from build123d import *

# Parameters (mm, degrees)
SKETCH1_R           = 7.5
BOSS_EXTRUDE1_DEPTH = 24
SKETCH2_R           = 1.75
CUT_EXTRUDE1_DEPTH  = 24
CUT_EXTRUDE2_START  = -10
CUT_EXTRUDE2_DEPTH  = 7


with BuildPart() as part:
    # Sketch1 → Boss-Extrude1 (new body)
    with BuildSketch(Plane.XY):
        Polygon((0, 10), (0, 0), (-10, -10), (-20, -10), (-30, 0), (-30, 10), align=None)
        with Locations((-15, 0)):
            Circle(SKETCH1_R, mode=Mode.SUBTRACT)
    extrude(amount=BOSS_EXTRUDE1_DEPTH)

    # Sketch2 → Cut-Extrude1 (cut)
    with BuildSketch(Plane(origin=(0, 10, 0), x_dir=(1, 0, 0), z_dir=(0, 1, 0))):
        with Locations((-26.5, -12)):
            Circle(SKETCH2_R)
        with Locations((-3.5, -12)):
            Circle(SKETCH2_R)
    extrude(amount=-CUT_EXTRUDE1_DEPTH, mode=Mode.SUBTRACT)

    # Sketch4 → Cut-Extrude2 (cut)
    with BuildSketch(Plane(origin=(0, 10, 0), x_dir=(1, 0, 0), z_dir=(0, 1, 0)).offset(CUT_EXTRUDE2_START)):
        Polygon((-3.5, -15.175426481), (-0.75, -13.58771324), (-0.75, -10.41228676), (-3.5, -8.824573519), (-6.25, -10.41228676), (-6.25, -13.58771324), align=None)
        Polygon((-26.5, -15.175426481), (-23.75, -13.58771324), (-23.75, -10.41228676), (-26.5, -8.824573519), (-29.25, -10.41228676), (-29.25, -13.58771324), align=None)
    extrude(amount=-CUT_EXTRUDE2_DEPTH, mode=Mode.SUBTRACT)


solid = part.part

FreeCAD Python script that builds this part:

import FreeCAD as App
import Part
import Sketcher
Q = App.Units.Quantity

doc = App.newDocument("Part")
body = doc.addObject("PartDesign::Body", "Body")

sketch1 = body.newObject("Sketcher::SketchObject", "Sketch")
sketch1.AttachmentSupport = (doc.getObject("XY_Plane"), [""])
sketch1.MapMode = "FlatFace"
sketch1.addGeometry(Part.LineSegment(App.Vector(0, 0, 0), App.Vector(0, 10, 0)), False)
sketch1.addGeometry(Part.LineSegment(App.Vector(0, 10, 0), App.Vector(-30, 10, 0)), False)
sketch1.addGeometry(Part.LineSegment(App.Vector(-30, 10, 0), App.Vector(-30, 0, 0)), False)
sketch1.addGeometry(Part.LineSegment(App.Vector(-30, 0, 0), App.Vector(-20, -10, 0)), False)
sketch1.addGeometry(Part.LineSegment(App.Vector(-20, -10, 0), App.Vector(-10, -10, 0)), False)
sketch1.addGeometry(Part.LineSegment(App.Vector(-10, -10, 0), App.Vector(0, 0, 0)), False)
sketch1.addGeometry(Part.Circle(App.Vector(-15, 0, 0), App.Vector(0, 0, 1), 8), False)
sketch1.addConstraint(Sketcher.Constraint("Coincident", 0, 2, 1, 1))
sketch1.addConstraint(Sketcher.Constraint("Coincident", 1, 2, 2, 1))
sketch1.addConstraint(Sketcher.Constraint("Coincident", 2, 2, 3, 1))
sketch1.addConstraint(Sketcher.Constraint("Coincident", 3, 2, 4, 1))
sketch1.addConstraint(Sketcher.Constraint("Coincident", 4, 2, 5, 1))
sketch1.addConstraint(Sketcher.Constraint("Coincident", 5, 2, 0, 1))
sketch1.addConstraint(Sketcher.Constraint("Vertical", 0))
sketch1.addConstraint(Sketcher.Constraint("Horizontal", 1))
sketch1.addConstraint(Sketcher.Constraint("Vertical", 2))
sketch1.addConstraint(Sketcher.Constraint("Horizontal", 4))
sketch1.addConstraint(Sketcher.Constraint("Coincident", 5, 2, -1, 1))
sketch1.addConstraint(Sketcher.Constraint("PointOnObject", 6, 3, -1))
sketch1.addConstraint(Sketcher.Constraint("PointOnObject", 2, 2, -1))
sketch1.addConstraint(Sketcher.Constraint("Perpendicular", 3, 5))
sketch1.addConstraint(Sketcher.Constraint("Equal", 4, 0))
sketch1.addConstraint(Sketcher.Constraint("Equal", 3, 5))
sketch1.addConstraint(Sketcher.Constraint("Diameter", 6, Q("15 mm")))
sketch1.addConstraint(Sketcher.Constraint("DistanceX", 1, 2, 1, 1, Q("30 mm")))
sketch1.addConstraint(Sketcher.Constraint("DistanceX", 4, 1, 4, 2, Q("10 mm")))
sketch1.addConstraint(Sketcher.Constraint("DistanceX", 6, 3, -1, 1, Q("15 mm")))
pad1 = body.newObject("PartDesign::Pad", "Pad")
pad1.Profile = sketch1
pad1.Length = 24

sketch2 = body.newObject("Sketcher::SketchObject", "Sketch001")
sketch2.AttachmentSupport = (doc.getObject("XZ_Plane"), [""])
sketch2.MapMode = "FlatFace"
sketch2.AttachmentOffset = App.Placement(App.Vector(0, 0, -10), App.Rotation())
sketch2.addGeometry(Part.Circle(App.Vector(-26.5, 12, 0), App.Vector(0, 0, 1), 1.8), False)
sketch2.addGeometry(Part.Circle(App.Vector(-3.5, 12, 0), App.Vector(0, 0, 1), 1.8), False)
sketch2.addConstraint(Sketcher.Constraint("Equal", 0, 1))
sketch2.addConstraint(Sketcher.Constraint("Horizontal", 0, 3, 1, 3))
sketch2.addConstraint(Sketcher.Constraint("Diameter", 0, Q("3.5 mm")))
sketch2.addConstraint(Sketcher.Constraint("DistanceY", -1, 1, 0, 3, Q("12 mm")))
sketch2.addConstraint(Sketcher.Constraint("DistanceX", 0, 3, 1, 3, Q("23 mm")))
sketch2.addConstraint(Sketcher.Constraint("DistanceX", 0, 3, -1, 1, Q("26.5 mm")))
pocket1 = body.newObject("PartDesign::Pocket", "Pocket")
pocket1.Profile = sketch2
pocket1.Length = 24
pocket1.Reversed = True

sketch3 = body.newObject("Sketcher::SketchObject", "Sketch002")
sketch3.AttachmentSupport = (doc.getObject("XZ_Plane"), [""])
sketch3.MapMode = "FlatFace"
sketch3.addGeometry(Part.LineSegment(App.Vector(-3.5, 15.2, 0), App.Vector(-0.8, 13.6, 0)), False)
sketch3.addGeometry(Part.LineSegment(App.Vector(-0.8, 13.6, 0), App.Vector(-0.8, 10.4, 0)), False)
sketch3.addGeometry(Part.LineSegment(App.Vector(-0.8, 10.4, 0), App.Vector(-3.5, 8.8, 0)), False)
sketch3.addGeometry(Part.LineSegment(App.Vector(-3.5, 8.8, 0), App.Vector(-6.2, 10.4, 0)), False)
sketch3.addGeometry(Part.LineSegment(App.Vector(-6.2, 10.4, 0), App.Vector(-6.2, 13.6, 0)), False)
sketch3.addGeometry(Part.LineSegment(App.Vector(-6.2, 13.6, 0), App.Vector(-3.5, 15.2, 0)), False)
sketch3.addGeometry(Part.LineSegment(App.Vector(-26.5, 15.2, 0), App.Vector(-23.8, 13.6, 0)), False)
sketch3.addGeometry(Part.LineSegment(App.Vector(-23.8, 13.6, 0), App.Vector(-23.8, 10.4, 0)), False)
sketch3.addGeometry(Part.LineSegment(App.Vector(-23.8, 10.4, 0), App.Vector(-26.5, 8.8, 0)), False)
sketch3.addGeometry(Part.LineSegment(App.Vector(-26.5, 8.8, 0), App.Vector(-29.2, 10.4, 0)), False)
sketch3.addGeometry(Part.LineSegment(App.Vector(-29.2, 10.4, 0), App.Vector(-29.2, 13.6, 0)), False)
sketch3.addGeometry(Part.LineSegment(App.Vector(-29.2, 13.6, 0), App.Vector(-26.5, 15.2, 0)), False)
sketch3.addConstraint(Sketcher.Constraint("Coincident", 0, 2, 1, 1))
sketch3.addConstraint(Sketcher.Constraint("Coincident", 1, 2, 2, 1))
sketch3.addConstraint(Sketcher.Constraint("Coincident", 2, 2, 3, 1))
sketch3.addConstraint(Sketcher.Constraint("Coincident", 3, 2, 4, 1))
sketch3.addConstraint(Sketcher.Constraint("Coincident", 4, 2, 5, 1))
sketch3.addConstraint(Sketcher.Constraint("Coincident", 5, 2, 0, 1))
sketch3.addConstraint(Sketcher.Constraint("Coincident", 6, 2, 7, 1))
sketch3.addConstraint(Sketcher.Constraint("Coincident", 7, 2, 8, 1))
sketch3.addConstraint(Sketcher.Constraint("Coincident", 8, 2, 9, 1))
sketch3.addConstraint(Sketcher.Constraint("Coincident", 9, 2, 10, 1))
sketch3.addConstraint(Sketcher.Constraint("Coincident", 10, 2, 11, 1))
sketch3.addConstraint(Sketcher.Constraint("Coincident", 11, 2, 6, 1))
sketch3.addConstraint(Sketcher.Constraint("Vertical", 1))
sketch3.addConstraint(Sketcher.Constraint("Vertical", 4))
sketch3.addConstraint(Sketcher.Constraint("Vertical", 7))
sketch3.addConstraint(Sketcher.Constraint("Vertical", 10))
sketch3.addConstraint(Sketcher.Constraint("Parallel", 0, 3))
sketch3.addConstraint(Sketcher.Constraint("Parallel", 2, 5))
sketch3.addConstraint(Sketcher.Constraint("Parallel", 3, 6))
sketch3.addConstraint(Sketcher.Constraint("Parallel", 5, 8))
sketch3.addConstraint(Sketcher.Constraint("Parallel", 6, 9))
sketch3.addConstraint(Sketcher.Constraint("Parallel", 8, 11))
sketch3.addConstraint(Sketcher.Constraint("Horizontal", 1, 2, 3, 2))
sketch3.addConstraint(Sketcher.Constraint("Horizontal", 0, 2, 4, 2))
sketch3.addConstraint(Sketcher.Constraint("Horizontal", 4, 2, 6, 2))
sketch3.addConstraint(Sketcher.Constraint("Horizontal", 3, 2, 7, 2))
sketch3.addConstraint(Sketcher.Constraint("Horizontal", 2, 2, 8, 2))
sketch3.addConstraint(Sketcher.Constraint("Horizontal", 7, 2, 9, 2))
sketch3.addConstraint(Sketcher.Constraint("Horizontal", 6, 2, 10, 2))
sketch3.addConstraint(Sketcher.Constraint("Vertical", 2, 2, 5, 2))
sketch3.addConstraint(Sketcher.Constraint("Angle", 0, Q("-30 deg")))
sketch3.addConstraint(Sketcher.Constraint("DistanceX", 6, 2, 0, 2, Q("23 mm")))
sketch3.addConstraint(Sketcher.Constraint("DistanceX", 2, 2, -1, 1, Q("3.5 mm")))
sketch3.addConstraint(Sketcher.Constraint("DistanceX", 3, 2, 1, 2, Q("5.5 mm")))
sketch3.addConstraint(Sketcher.Constraint("DistanceY", 1, 2, 1, 1, Q("3.175426 mm")))
sketch3.addConstraint(Sketcher.Constraint("DistanceY", -1, 1, 0, 2, Q("13.587713 mm")))
pocket2 = body.newObject("PartDesign::Pocket", "Pocket001")
pocket2.Profile = sketch3
pocket2.Length = 7
pocket2.Reversed = True

doc.recompute()
